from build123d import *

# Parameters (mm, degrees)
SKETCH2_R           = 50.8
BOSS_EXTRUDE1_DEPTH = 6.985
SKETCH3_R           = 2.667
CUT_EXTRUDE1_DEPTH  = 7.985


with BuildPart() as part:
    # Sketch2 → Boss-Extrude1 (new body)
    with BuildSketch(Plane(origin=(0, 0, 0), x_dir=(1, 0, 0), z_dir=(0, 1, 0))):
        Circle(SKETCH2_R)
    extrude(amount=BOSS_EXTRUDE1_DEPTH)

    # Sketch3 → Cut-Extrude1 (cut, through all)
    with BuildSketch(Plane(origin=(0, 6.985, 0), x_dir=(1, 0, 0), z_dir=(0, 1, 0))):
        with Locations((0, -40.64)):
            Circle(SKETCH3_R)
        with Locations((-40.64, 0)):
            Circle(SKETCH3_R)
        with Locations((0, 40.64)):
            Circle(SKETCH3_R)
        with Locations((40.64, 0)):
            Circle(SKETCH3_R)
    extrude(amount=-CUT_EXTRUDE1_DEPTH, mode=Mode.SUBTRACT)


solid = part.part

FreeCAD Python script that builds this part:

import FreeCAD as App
import Part
import Sketcher

V = App.Vector
Q = App.Units.Quantity

doc = App.newDocument("Part")
params = doc.addObject("Spreadsheet::Sheet", "Params")
for row, (alias, value) in enumerate([
    ("sketch1_diameter", "4 in"),
    ("pad1_length", "0.275 in"),
    ("sketch2_diameter", "0.21 in"),
], start=1):
    params.set(f"A{row}", alias)
    params.set(f"B{row}", "=" + value)
    params.setAlias(f"B{row}", alias)

body = doc.addObject("PartDesign::Body", "Body")

sketch1 = doc.addObject("Sketcher::SketchObject", "Sketch")
body.addObject(sketch1)
sketch1.AttachmentSupport = (doc.XZ_Plane, [""])
sketch1.MapMode = "FlatFace"
sketch1.addGeometry(Part.Circle(V(0, 0, 0), V(0, 0, 1), 51), False)
sketch1.addConstraint([
    Sketcher.Constraint("Coincident", 0, 3, -1, 1),
    Sketcher.Constraint("Diameter", 0, Q("4 in")),
])
sketch1.setExpression("Constraints[1]", "Params.sketch1_diameter")
pad1 = doc.addObject("PartDesign::Pad", "Pad")
body.addObject(pad1)
pad1.Profile = sketch1
pad1.setExpression("Length", "Params.pad1_length")
pad1.Reversed = True

sketch2 = doc.addObject("Sketcher::SketchObject", "Sketch001")
body.addObject(sketch2)
sketch2.AttachmentSupport = (doc.XZ_Plane, [""])
sketch2.MapMode = "FlatFace"
sketch2.AttachmentOffset = App.Placement(V(0, 0, -0.275 * 25.4), App.Rotation())
sketch2.addGeometry([
    Part.Circle(V(0, 40.6, 0), V(0, 0, 1), 2.7),
    Part.Circle(V(-40.6, 0, 0), V(0, 0, 1), 2.7),
    Part.Circle(V(0, -40.6, 0), V(0, 0, 1), 2.7),
    Part.Circle(V(40.6, 0, 0), V(0, 0, 1), 2.7),
], False)
sketch2.addConstraint([
    Sketcher.Constraint("Equal", 0, 1),
    Sketcher.Constraint("Equal", 1, 2),
    Sketcher.Constraint("Equal", 2, 3),
    Sketcher.Constraint("Symmetric", 0, 3, 2, 3, -1, 1),
    Sketcher.Constraint("Symmetric", 1, 3, 3, 3, -1, 1),
    Sketcher.Constraint("PointOnObject", 0, 3, -2),
    Sketcher.Constraint("PointOnObject", 1, 3, -1),
    Sketcher.Constraint("Diameter", 0, Q("0.21 in")),
    Sketcher.Constraint("DistanceY", -1, 1, 0, 3, Q("1.6 in")),
    Sketcher.Constraint("DistanceX", 1, 3, -1, 1, Q("1.6 in")),
])
sketch2.setExpression("Constraints[7]", "Params.sketch2_diameter")
pocket1 = doc.addObject("PartDesign::Pocket", "Pocket")
body.addObject(pocket1)
pocket1.Profile = sketch2
pocket1.Type = "ThroughAll"
pocket1.Reversed = True

doc.recompute()
